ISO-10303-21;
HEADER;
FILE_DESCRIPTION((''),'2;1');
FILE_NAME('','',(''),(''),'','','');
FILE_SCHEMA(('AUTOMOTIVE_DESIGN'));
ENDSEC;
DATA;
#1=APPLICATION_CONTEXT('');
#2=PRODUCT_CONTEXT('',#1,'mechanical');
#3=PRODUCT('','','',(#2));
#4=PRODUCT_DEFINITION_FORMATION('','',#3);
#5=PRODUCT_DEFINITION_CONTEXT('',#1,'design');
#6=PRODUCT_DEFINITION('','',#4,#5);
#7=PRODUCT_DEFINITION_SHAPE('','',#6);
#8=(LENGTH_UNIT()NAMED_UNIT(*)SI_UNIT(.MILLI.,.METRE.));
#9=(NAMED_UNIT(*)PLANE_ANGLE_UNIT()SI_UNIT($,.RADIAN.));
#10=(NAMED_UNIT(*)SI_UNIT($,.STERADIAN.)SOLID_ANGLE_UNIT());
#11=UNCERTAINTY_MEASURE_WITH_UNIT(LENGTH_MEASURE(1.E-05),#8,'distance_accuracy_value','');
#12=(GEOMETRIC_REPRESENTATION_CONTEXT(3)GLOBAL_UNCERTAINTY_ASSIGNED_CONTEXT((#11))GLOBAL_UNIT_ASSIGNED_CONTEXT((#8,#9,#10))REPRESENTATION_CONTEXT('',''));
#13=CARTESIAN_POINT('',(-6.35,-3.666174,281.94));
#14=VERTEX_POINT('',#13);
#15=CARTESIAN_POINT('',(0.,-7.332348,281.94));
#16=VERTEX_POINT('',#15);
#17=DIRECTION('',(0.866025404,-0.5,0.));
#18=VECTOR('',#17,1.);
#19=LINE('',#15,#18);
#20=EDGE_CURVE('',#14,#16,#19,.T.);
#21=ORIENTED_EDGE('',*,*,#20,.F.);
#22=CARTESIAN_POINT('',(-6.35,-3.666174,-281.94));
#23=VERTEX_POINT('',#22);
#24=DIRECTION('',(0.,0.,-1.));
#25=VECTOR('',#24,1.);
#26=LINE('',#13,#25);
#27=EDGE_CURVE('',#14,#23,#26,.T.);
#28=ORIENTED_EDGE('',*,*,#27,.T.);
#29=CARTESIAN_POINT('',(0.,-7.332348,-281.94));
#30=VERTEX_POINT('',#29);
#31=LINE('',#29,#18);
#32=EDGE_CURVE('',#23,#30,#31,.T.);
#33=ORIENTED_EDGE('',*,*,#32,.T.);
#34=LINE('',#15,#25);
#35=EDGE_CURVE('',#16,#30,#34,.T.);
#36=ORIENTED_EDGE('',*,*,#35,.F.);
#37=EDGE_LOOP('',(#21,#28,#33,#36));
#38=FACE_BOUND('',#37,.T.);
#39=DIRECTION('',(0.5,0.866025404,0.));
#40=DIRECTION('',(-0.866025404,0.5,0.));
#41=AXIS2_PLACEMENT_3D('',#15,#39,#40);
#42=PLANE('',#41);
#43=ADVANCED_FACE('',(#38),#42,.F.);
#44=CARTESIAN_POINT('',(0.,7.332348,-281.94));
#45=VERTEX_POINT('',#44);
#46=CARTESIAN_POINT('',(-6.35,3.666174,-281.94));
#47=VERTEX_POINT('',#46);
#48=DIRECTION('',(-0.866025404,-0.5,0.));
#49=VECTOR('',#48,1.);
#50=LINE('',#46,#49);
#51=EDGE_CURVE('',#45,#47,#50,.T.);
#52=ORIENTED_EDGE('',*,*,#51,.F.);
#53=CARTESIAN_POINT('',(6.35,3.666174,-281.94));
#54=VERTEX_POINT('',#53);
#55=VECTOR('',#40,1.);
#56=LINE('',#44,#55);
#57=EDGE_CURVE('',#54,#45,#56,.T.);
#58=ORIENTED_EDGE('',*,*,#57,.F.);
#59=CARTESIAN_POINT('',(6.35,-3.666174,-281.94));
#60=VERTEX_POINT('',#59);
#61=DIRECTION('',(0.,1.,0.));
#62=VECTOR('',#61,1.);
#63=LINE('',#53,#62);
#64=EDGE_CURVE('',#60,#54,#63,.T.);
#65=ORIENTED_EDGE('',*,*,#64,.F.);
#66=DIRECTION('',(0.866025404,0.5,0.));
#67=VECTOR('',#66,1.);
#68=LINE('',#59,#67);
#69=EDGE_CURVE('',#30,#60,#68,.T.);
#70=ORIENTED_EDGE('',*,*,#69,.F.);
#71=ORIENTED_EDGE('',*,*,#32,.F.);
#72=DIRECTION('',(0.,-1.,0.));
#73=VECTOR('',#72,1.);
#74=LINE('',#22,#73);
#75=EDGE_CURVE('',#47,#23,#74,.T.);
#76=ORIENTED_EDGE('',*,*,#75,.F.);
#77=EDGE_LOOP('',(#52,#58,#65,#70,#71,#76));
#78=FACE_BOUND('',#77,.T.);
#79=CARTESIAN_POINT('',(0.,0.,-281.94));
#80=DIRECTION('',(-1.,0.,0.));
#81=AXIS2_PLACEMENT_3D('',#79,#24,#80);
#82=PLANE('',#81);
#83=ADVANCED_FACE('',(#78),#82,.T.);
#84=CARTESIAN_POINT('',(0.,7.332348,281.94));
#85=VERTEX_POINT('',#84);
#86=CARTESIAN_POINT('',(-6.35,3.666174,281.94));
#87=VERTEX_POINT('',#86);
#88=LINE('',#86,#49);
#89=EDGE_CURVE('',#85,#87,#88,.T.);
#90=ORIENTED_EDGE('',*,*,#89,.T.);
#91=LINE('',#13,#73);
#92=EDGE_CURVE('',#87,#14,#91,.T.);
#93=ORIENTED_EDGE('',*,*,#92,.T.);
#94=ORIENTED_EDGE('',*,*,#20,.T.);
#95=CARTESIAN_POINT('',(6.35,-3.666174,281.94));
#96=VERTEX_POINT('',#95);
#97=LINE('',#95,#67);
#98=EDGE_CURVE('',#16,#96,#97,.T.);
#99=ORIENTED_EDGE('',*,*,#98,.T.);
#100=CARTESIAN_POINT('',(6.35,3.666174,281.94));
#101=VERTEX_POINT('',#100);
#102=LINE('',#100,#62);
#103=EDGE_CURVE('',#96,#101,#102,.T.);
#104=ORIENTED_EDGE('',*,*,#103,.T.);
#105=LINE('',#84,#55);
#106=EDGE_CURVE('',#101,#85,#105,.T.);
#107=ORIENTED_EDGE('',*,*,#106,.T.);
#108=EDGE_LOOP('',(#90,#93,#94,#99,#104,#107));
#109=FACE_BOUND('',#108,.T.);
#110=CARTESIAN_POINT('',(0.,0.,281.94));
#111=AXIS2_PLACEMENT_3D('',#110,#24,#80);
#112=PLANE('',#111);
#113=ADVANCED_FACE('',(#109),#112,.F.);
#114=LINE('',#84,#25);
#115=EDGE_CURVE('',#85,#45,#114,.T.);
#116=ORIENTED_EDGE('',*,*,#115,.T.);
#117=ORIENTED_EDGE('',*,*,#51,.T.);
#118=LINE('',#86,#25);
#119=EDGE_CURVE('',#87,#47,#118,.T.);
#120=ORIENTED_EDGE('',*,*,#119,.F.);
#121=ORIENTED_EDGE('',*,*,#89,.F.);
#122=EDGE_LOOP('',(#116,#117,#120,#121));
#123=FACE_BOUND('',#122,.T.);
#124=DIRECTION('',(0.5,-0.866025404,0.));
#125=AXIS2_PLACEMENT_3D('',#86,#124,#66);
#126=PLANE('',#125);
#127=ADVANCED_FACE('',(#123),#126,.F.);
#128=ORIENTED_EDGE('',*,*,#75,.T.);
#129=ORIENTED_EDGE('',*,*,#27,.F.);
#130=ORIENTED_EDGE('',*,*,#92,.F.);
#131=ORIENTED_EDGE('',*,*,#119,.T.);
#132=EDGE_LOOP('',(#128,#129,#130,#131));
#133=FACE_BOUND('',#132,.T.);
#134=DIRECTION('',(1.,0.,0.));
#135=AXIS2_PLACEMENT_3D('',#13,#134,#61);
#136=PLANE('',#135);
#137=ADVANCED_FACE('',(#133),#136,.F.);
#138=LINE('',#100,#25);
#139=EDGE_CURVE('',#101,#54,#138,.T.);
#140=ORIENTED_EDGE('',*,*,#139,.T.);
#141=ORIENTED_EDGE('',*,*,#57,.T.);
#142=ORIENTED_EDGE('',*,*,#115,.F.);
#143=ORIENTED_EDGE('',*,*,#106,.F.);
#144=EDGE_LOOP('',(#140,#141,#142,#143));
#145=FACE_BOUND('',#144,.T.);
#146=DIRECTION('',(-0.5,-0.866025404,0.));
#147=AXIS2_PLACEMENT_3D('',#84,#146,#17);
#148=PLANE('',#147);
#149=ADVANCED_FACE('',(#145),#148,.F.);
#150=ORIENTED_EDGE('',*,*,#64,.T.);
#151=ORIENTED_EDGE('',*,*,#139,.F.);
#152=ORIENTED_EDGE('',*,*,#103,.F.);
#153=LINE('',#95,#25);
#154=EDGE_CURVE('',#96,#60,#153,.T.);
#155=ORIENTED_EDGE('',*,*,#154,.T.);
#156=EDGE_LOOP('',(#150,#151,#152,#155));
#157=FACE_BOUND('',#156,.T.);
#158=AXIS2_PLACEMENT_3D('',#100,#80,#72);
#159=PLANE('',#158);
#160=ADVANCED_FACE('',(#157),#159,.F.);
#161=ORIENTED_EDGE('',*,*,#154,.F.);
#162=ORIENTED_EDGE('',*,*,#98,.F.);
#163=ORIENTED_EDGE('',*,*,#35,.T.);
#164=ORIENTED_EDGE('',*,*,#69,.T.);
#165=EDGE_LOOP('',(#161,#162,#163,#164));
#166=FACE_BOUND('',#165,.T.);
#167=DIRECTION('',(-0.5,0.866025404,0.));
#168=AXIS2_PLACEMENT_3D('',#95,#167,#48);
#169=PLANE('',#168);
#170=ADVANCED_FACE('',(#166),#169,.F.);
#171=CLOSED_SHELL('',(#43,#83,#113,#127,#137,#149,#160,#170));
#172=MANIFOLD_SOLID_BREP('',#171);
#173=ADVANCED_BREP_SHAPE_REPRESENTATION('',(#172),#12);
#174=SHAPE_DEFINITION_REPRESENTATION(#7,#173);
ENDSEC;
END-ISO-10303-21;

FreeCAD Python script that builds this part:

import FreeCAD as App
import Part
import Sketcher
Q = App.Units.Quantity

doc = App.newDocument("Part")
body = doc.addObject("PartDesign::Body", "Body")

sketch1 = doc.addObject("Sketcher::SketchObject", "Sketch")
body.addObject(sketch1)
sketch1.AttachmentSupport = (doc.XY_Plane, [""])
sketch1.MapMode = "FlatFace"
sketch1.addGeometry(Part.LineSegment(App.Vector(6, 4, 0), App.Vector(0, 7, 0)), False)
sketch1.addGeometry(Part.LineSegment(App.Vector(0, 7, 0), App.Vector(-6, 4, 0)), False)
sketch1.addGeometry(Part.LineSegment(App.Vector(-6, 4, 0), App.Vector(-6, -4, 0)), False)
sketch1.addGeometry(Part.LineSegment(App.Vector(-6, -4, 0), App.Vector(0, -7, 0)), False)
sketch1.addGeometry(Part.LineSegment(App.Vector(0, -7, 0), App.Vector(6, -4, 0)), False)
sketch1.addGeometry(Part.LineSegment(App.Vector(6, -4, 0), App.Vector(6, 4, 0)), False)
sketch1.addConstraint(Sketcher.Constraint("Coincident", 0, 2, 1, 1))
sketch1.addConstraint(Sketcher.Constraint("Coincident", 1, 2, 2, 1))
sketch1.addConstraint(Sketcher.Constraint("Coincident", 2, 2, 3, 1))
sketch1.addConstraint(Sketcher.Constraint("Coincident", 3, 2, 4, 1))
sketch1.addConstraint(Sketcher.Constraint("Coincident", 4, 2, 5, 1))
sketch1.addConstraint(Sketcher.Constraint("Coincident", 5, 2, 0, 1))
sketch1.addConstraint(Sketcher.Constraint("Vertical", 2))
sketch1.addConstraint(Sketcher.Constraint("Vertical", 5))
sketch1.addConstraint(Sketcher.Constraint("Symmetric", 0, 2, 3, 2, -1, 1))
sketch1.addConstraint(Sketcher.Constraint("Symmetric", 1, 2, 4, 2, -1, 1))
sketch1.addConstraint(Sketcher.Constraint("PointOnObject", 0, 2, -2))
sketch1.addConstraint(Sketcher.Constraint("Parallel", 0, 3))
sketch1.addConstraint(Sketcher.Constraint("Horizontal", 2, 2, 4, 2))
sketch1.addConstraint(Sketcher.Constraint("Angle", 0, Q("150 deg")))
sketch1.addConstraint(Sketcher.Constraint("DistanceX", 2, 2, 4, 2, Q("0.5 in")))
sketch1.addConstraint(Sketcher.Constraint("DistanceY", 2, 2, 2, 1, 7.332348))
pad1 = doc.addObject("PartDesign::Pad", "Pad")
body.addObject(pad1)
pad1.Profile = sketch1
pad1.Length = Q("22.2 in")
pad1.Midplane = True

doc.recompute()
